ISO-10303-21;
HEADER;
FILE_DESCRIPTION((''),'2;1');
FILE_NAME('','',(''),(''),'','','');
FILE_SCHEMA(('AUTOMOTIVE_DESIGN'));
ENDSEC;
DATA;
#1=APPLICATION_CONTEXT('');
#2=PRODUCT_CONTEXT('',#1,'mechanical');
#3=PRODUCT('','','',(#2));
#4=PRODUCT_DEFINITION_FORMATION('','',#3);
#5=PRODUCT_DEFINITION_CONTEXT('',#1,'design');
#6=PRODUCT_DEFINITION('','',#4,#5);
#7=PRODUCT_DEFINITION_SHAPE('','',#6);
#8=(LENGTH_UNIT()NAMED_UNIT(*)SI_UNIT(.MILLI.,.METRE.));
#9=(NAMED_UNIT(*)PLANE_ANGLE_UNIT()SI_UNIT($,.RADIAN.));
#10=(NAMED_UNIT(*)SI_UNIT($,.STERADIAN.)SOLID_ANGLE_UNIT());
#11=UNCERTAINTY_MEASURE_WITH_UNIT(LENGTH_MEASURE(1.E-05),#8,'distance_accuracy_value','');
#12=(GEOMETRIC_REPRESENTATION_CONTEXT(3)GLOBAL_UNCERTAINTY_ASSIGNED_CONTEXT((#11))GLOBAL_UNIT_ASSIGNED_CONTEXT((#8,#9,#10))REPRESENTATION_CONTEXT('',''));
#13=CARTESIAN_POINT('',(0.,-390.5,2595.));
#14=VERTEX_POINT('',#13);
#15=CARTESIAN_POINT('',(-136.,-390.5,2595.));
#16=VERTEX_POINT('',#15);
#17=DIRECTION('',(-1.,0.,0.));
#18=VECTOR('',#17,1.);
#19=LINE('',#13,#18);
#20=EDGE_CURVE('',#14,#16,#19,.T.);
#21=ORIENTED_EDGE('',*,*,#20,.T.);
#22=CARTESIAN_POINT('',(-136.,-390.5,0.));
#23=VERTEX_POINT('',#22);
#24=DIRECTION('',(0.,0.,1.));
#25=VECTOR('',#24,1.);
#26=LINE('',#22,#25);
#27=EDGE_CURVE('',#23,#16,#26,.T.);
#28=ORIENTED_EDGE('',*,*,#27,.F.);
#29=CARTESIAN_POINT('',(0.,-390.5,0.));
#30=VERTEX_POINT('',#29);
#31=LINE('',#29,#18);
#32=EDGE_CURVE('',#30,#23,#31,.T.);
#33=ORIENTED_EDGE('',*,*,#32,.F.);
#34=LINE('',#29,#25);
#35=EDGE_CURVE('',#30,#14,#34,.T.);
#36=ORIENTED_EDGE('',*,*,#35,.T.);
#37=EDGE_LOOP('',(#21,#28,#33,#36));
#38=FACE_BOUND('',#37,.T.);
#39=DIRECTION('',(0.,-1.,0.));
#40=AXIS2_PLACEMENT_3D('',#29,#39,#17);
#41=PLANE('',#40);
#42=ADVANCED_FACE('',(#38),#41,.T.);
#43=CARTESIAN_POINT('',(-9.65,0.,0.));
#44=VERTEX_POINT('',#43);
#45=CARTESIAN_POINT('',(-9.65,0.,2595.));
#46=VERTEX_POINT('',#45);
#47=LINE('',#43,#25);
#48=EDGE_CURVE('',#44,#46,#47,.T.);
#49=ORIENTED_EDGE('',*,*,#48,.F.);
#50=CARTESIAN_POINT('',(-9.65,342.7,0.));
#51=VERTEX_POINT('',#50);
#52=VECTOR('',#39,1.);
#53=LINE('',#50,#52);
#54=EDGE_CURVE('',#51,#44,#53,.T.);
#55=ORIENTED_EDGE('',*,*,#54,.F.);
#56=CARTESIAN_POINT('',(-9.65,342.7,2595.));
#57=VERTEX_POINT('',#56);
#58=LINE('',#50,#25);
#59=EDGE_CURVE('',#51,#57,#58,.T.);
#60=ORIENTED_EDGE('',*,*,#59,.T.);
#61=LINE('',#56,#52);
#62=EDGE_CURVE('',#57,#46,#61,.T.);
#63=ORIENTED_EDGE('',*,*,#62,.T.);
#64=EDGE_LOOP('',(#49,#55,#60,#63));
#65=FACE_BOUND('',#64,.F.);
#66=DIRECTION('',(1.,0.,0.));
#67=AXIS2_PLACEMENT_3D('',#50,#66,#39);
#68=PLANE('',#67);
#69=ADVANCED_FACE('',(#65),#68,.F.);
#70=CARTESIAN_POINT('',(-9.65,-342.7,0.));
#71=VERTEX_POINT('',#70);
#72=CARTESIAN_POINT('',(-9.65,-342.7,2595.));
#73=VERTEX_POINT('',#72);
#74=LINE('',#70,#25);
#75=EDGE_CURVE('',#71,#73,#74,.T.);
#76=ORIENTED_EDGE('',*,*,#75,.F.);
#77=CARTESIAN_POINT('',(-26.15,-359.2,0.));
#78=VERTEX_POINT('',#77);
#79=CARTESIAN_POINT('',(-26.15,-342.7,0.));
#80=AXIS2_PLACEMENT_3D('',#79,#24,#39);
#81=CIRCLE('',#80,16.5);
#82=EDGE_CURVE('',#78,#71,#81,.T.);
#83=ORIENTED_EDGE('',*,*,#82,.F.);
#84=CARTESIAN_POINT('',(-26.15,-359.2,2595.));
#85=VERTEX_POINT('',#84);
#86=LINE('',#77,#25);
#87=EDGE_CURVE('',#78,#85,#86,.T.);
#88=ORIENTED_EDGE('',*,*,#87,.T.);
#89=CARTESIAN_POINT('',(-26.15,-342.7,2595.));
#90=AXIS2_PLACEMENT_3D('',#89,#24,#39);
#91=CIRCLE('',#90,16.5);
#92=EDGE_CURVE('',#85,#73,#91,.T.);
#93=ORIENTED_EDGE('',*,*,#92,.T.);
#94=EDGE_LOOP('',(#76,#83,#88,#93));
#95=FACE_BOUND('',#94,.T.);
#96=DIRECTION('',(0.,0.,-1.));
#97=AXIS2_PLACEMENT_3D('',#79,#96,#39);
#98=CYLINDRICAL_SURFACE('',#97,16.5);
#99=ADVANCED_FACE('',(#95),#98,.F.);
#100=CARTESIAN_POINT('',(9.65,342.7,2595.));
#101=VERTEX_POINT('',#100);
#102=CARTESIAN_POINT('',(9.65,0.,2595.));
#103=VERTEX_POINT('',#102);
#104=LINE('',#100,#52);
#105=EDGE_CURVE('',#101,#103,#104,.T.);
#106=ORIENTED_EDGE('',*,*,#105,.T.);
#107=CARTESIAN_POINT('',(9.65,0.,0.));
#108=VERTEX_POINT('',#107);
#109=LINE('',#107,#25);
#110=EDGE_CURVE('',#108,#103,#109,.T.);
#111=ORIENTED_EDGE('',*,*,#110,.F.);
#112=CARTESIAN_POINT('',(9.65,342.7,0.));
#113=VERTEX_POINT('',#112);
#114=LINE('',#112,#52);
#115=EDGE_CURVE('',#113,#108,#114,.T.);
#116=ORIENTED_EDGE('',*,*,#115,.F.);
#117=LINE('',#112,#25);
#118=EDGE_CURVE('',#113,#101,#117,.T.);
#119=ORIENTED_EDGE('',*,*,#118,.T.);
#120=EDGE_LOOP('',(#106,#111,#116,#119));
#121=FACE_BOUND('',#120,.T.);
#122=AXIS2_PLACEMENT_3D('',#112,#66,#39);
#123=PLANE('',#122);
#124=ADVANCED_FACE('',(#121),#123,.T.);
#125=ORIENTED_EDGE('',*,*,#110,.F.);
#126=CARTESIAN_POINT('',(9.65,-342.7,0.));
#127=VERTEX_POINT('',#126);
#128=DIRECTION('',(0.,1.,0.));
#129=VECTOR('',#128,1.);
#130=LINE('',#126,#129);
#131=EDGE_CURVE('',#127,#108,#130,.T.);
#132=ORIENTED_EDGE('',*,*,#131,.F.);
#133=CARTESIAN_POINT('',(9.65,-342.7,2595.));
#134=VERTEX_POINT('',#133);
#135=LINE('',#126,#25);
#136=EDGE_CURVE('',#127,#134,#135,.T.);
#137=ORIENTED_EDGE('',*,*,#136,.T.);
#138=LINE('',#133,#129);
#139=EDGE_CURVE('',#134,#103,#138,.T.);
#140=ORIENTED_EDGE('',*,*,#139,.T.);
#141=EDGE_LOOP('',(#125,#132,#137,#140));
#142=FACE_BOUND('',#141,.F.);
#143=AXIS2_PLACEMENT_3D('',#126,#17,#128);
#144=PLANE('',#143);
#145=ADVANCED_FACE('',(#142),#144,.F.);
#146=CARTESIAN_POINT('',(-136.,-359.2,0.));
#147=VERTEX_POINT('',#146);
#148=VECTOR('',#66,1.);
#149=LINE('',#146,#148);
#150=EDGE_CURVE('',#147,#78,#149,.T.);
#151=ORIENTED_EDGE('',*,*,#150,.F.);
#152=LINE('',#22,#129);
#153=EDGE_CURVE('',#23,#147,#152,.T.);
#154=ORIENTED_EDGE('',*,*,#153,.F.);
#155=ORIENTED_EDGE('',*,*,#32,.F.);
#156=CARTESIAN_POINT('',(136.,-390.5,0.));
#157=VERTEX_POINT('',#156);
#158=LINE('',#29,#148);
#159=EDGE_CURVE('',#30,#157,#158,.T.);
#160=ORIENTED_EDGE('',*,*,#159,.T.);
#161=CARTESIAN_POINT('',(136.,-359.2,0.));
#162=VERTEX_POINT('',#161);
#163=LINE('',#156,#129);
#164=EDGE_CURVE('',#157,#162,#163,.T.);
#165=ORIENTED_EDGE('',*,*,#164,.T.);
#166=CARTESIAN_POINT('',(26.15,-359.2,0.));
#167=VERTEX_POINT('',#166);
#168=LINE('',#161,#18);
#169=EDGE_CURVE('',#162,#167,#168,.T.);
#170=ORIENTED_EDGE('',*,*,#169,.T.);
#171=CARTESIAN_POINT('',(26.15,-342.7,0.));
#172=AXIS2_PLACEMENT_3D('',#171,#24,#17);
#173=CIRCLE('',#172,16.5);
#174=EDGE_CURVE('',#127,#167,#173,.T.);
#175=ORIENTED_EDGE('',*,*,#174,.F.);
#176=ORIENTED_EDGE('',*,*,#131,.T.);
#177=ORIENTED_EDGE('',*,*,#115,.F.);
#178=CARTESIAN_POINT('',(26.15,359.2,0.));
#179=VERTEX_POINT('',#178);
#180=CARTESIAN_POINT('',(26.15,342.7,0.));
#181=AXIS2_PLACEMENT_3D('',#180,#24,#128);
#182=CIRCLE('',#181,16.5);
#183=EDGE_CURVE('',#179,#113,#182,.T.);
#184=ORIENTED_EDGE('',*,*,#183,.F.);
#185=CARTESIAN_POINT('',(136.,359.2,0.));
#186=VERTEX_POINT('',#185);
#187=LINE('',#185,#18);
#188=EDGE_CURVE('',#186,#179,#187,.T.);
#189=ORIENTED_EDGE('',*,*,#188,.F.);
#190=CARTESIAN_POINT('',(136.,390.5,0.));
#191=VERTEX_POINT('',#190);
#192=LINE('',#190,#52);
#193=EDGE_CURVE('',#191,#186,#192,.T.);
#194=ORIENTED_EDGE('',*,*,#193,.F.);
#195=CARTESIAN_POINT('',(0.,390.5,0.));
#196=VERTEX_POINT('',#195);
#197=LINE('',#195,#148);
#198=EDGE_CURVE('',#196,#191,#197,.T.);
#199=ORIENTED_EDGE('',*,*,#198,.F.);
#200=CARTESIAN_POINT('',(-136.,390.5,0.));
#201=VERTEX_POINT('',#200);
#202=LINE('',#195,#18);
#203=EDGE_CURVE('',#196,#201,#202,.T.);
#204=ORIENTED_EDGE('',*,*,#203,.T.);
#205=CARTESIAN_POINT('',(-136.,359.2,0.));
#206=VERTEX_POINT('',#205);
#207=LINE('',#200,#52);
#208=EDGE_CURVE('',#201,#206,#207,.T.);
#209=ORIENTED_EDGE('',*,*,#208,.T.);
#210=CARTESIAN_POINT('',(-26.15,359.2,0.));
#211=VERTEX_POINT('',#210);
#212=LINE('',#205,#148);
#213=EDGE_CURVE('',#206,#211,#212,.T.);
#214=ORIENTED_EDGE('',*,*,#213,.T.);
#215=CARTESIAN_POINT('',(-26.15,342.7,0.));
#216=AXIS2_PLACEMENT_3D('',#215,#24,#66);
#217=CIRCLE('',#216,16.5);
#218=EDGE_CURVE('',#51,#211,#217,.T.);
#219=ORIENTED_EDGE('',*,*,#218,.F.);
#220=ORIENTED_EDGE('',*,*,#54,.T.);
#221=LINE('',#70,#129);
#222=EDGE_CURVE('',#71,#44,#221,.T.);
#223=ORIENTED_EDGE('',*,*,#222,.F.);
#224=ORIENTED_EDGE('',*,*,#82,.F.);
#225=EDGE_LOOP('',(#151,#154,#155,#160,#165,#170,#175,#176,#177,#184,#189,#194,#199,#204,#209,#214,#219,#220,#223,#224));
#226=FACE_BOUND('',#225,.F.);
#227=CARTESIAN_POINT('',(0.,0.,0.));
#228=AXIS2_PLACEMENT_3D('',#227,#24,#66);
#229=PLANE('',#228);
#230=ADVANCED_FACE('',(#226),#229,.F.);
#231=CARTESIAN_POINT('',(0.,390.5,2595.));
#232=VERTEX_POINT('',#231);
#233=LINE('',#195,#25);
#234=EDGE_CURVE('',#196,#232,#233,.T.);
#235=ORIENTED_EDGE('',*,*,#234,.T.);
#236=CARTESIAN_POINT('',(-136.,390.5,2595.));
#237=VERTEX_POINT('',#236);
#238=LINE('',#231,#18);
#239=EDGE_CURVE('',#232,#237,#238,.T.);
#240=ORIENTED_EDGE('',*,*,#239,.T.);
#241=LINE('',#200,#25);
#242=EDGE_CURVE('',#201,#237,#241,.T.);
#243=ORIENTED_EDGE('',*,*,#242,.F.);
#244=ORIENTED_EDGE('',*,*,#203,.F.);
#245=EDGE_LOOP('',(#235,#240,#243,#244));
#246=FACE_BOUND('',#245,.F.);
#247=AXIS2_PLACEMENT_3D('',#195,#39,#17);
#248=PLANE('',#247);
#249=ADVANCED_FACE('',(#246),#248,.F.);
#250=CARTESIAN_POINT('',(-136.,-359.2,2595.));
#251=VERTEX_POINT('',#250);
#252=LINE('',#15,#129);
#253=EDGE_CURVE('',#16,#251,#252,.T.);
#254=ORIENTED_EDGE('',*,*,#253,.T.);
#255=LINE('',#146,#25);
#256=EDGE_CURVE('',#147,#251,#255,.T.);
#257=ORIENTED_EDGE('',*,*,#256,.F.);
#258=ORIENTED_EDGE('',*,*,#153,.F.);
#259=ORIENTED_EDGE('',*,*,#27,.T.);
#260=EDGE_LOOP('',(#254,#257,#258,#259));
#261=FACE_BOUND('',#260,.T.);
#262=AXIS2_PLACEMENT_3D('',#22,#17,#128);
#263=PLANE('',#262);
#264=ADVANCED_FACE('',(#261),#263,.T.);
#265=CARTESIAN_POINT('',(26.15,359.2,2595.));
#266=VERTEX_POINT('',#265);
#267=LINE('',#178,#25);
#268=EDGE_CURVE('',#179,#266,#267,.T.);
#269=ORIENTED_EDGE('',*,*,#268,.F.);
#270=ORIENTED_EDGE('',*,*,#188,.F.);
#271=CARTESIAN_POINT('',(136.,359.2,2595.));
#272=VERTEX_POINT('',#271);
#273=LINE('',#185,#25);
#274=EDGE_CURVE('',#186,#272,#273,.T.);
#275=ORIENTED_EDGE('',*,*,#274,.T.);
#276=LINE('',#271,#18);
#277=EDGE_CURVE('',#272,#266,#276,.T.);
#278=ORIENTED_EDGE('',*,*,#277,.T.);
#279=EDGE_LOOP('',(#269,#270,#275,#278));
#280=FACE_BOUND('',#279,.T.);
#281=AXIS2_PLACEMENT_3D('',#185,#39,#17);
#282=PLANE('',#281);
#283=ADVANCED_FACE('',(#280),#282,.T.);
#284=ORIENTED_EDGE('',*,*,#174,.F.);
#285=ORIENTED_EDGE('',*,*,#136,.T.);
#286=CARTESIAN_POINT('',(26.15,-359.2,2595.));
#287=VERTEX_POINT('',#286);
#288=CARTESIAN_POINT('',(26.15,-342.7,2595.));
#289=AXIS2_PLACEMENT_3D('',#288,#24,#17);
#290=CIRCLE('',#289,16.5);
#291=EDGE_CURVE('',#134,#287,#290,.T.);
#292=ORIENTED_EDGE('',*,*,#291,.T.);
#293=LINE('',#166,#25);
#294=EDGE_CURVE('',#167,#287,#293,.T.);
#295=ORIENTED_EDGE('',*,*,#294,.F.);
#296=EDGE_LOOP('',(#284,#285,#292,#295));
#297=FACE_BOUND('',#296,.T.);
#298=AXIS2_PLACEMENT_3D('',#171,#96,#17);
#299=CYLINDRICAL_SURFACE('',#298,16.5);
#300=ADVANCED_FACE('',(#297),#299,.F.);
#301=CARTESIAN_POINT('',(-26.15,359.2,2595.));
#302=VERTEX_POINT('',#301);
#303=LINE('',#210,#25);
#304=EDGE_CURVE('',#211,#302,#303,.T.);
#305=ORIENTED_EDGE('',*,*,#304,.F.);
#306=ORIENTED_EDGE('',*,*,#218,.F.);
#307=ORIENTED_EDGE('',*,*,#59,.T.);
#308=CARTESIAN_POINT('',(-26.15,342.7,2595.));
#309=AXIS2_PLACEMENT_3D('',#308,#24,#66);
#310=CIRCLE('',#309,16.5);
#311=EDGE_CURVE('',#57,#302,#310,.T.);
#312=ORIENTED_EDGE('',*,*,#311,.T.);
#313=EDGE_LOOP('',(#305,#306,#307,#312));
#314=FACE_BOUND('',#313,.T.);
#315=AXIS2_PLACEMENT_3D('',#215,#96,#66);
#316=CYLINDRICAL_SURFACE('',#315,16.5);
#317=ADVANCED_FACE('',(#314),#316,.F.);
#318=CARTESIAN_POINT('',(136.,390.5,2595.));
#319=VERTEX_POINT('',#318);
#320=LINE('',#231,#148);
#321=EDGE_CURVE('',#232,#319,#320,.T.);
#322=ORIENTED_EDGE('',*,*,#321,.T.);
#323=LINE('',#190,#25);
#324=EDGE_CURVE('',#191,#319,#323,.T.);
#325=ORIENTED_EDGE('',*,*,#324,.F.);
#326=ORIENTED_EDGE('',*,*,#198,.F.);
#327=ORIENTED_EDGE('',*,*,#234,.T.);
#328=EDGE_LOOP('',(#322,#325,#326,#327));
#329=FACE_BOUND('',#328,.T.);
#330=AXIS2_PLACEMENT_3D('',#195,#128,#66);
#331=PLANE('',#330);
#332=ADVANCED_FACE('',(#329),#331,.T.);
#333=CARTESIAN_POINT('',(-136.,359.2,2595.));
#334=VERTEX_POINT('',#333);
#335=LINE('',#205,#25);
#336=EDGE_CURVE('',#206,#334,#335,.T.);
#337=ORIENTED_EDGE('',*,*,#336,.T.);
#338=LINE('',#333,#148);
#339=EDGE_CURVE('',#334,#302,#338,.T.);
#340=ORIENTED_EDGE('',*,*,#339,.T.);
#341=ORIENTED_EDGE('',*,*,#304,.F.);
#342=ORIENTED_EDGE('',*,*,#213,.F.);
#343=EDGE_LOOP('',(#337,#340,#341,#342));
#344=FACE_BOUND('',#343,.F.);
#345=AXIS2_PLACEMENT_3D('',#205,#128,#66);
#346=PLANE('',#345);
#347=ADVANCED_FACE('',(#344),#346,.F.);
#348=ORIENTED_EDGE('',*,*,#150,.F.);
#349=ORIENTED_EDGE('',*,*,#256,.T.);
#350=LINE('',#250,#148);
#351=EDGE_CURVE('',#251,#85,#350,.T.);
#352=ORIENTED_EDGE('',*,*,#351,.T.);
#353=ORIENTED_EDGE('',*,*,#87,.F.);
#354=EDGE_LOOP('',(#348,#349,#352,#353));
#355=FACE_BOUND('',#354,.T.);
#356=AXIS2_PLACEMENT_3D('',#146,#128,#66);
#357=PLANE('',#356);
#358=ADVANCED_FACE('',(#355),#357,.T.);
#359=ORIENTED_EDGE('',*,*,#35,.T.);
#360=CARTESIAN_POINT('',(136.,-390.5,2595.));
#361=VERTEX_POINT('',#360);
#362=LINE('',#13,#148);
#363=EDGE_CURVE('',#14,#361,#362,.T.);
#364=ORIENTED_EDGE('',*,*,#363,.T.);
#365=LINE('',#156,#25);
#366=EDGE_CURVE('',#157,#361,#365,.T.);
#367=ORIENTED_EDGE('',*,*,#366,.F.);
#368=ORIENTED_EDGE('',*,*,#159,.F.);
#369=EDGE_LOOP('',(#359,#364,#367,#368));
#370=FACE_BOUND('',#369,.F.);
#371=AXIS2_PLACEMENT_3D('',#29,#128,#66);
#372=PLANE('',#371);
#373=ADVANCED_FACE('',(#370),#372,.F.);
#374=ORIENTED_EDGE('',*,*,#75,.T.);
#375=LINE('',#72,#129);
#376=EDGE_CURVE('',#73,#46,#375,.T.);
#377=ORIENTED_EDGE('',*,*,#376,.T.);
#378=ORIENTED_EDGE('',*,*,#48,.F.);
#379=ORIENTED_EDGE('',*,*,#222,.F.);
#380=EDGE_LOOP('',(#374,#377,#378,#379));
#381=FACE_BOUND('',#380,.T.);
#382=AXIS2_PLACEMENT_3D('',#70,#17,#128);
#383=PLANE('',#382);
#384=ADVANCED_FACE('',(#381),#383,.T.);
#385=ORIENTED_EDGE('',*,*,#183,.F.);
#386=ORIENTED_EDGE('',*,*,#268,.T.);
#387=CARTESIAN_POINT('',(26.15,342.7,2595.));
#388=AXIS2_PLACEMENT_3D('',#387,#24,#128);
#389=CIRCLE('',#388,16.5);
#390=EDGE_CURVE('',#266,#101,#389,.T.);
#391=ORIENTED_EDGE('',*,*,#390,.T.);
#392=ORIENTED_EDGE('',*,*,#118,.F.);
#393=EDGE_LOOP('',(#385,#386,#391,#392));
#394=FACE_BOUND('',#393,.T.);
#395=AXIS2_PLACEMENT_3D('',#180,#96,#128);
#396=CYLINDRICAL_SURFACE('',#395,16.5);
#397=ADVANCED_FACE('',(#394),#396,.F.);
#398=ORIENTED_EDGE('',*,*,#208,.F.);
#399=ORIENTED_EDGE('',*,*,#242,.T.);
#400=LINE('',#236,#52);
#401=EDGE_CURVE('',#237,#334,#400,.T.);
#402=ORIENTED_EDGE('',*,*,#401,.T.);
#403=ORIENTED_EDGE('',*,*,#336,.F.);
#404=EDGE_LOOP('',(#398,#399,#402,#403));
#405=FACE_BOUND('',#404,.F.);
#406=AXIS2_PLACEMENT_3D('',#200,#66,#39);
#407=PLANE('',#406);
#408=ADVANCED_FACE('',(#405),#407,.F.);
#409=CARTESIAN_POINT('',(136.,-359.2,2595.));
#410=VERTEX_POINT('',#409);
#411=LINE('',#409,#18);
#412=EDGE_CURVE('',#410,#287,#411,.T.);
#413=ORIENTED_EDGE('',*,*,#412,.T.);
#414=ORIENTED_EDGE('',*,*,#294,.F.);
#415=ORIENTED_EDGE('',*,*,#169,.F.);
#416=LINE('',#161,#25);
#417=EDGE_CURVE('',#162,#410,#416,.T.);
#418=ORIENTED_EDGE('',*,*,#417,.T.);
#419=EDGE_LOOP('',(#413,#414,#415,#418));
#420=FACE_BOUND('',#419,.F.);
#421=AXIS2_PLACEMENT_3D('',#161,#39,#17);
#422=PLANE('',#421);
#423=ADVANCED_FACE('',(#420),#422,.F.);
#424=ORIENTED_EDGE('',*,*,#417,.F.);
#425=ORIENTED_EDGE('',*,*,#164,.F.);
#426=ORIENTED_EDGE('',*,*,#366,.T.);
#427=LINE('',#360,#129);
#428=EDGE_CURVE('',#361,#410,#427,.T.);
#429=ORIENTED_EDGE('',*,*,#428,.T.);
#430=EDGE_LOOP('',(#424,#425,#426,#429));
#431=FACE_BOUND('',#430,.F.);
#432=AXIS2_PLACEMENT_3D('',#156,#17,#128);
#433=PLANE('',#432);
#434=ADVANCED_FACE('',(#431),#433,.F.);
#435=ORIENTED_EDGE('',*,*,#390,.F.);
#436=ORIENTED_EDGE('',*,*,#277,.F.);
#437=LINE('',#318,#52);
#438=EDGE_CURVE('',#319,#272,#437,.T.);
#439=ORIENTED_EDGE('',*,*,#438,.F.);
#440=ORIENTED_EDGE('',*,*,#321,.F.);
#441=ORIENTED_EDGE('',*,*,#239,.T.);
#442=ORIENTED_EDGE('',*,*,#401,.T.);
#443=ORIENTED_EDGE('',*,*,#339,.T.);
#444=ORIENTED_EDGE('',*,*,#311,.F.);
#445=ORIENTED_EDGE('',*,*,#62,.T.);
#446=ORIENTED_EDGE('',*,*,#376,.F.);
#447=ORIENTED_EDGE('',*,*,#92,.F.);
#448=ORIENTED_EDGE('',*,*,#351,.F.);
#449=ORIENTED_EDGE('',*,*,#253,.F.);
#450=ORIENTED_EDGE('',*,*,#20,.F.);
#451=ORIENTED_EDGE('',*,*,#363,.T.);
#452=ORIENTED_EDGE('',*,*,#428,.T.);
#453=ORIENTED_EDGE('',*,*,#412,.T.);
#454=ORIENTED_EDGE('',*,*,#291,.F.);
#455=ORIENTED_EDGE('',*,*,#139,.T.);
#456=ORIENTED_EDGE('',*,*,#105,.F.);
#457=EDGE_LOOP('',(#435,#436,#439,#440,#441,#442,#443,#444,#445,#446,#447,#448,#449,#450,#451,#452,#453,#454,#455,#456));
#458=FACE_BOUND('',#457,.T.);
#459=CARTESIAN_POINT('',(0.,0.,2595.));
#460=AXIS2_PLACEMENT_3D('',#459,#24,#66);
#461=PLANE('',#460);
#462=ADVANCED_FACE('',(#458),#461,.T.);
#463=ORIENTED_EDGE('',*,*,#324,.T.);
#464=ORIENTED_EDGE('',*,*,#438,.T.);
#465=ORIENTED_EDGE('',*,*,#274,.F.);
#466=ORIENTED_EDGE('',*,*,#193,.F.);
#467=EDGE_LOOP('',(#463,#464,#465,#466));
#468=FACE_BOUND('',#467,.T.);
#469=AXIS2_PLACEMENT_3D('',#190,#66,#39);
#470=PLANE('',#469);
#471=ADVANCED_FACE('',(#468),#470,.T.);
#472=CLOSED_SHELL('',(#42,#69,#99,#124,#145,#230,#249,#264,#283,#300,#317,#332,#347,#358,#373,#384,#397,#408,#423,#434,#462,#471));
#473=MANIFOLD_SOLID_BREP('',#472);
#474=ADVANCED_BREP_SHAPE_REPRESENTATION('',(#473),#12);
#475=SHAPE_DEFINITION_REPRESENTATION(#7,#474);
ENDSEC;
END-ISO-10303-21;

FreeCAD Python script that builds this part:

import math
import FreeCAD as App
import Part
import Sketcher

doc = App.newDocument("Part")
body = doc.addObject("PartDesign::Body", "Body")

sketch1 = body.newObject("Sketcher::SketchObject", "Sketch")
sketch1.AttachmentSupport = (doc.getObject("XY_Plane"), [""])
sketch1.MapMode = "FlatFace"
sketch1.addGeometry([
    Part.LineSegment(App.Vector(-136, -359.2, 0), App.Vector(-136, -390.5, 0)),
    Part.LineSegment(App.Vector(-136, -390.5, 0), App.Vector(136, -390.5, 0)),
    Part.LineSegment(App.Vector(136, -390.5, 0), App.Vector(136, -359.2, 0)),
    Part.LineSegment(App.Vector(136, -359.2, 0), App.Vector(26.15, -359.2, 0)),
    Part.ArcOfCircle(Part.Circle(App.Vector(26.15, -342.7, 0), App.Vector(0, 0, 1), 16.5), math.radians(180), math.radians(270)),
    Part.LineSegment(App.Vector(9.65, -342.7, 0), App.Vector(9.65, 342.7, 0)),
    Part.ArcOfCircle(Part.Circle(App.Vector(26.15, 342.7, 0), App.Vector(0, 0, 1), 16.5), math.radians(90), math.radians(180)),
    Part.LineSegment(App.Vector(26.15, 359.2, 0), App.Vector(136, 359.2, 0)),
    Part.LineSegment(App.Vector(136, 359.2, 0), App.Vector(136, 390.5, 0)),
    Part.LineSegment(App.Vector(136, 390.5, 0), App.Vector(-136, 390.5, 0)),
    Part.LineSegment(App.Vector(-136, 390.5, 0), App.Vector(-136, 359.2, 0)),
    Part.LineSegment(App.Vector(-136, 359.2, 0), App.Vector(-26.15, 359.2, 0)),
    Part.ArcOfCircle(Part.Circle(App.Vector(-26.15, 342.7, 0), App.Vector(0, 0, 1), 16.5), math.radians(0), math.radians(90)),
    Part.LineSegment(App.Vector(-9.65, 342.7, 0), App.Vector(-9.65, -342.7, 0)),
    Part.ArcOfCircle(Part.Circle(App.Vector(-26.15, -342.7, 0), App.Vector(0, 0, 1), 16.5), math.radians(-90), math.radians(0)),
    Part.LineSegment(App.Vector(-26.15, -359.2, 0), App.Vector(-136, -359.2, 0)),
], False)
sketch1.addConstraint([
    Sketcher.Constraint("Coincident", 0, 2, 1, 1),
    Sketcher.Constraint("Coincident", 1, 2, 2, 1),
    Sketcher.Constraint("Coincident", 2, 2, 3, 1),
    Sketcher.Constraint("Tangent", 3, 2, 4, 2),
    Sketcher.Constraint("Tangent", 4, 1, 5, 1),
    Sketcher.Constraint("Tangent", 5, 2, 6, 2),
    Sketcher.Constraint("Tangent", 6, 1, 7, 1),
    Sketcher.Constraint("Coincident", 7, 2, 8, 1),
    Sketcher.Constraint("Coincident", 8, 2, 9, 1),
    Sketcher.Constraint("Coincident", 9, 2, 10, 1),
    Sketcher.Constraint("Coincident", 10, 2, 11, 1),
    Sketcher.Constraint("Tangent", 11, 2, 12, 2),
    Sketcher.Constraint("Tangent", 12, 1, 13, 1),
    Sketcher.Constraint("Tangent", 13, 2, 14, 2),
    Sketcher.Constraint("Tangent", 14, 1, 15, 1),
    Sketcher.Constraint("Coincident", 15, 2, 0, 1),
    Sketcher.Constraint("Vertical", 0),
    Sketcher.Constraint("Horizontal", 1),
    Sketcher.Constraint("Vertical", 2),
    Sketcher.Constraint("Horizontal", 3),
    Sketcher.Constraint("Vertical", 5),
    Sketcher.Constraint("Horizontal", 7),
    Sketcher.Constraint("Vertical", 8),
    Sketcher.Constraint("Horizontal", 9),
    Sketcher.Constraint("Vertical", 10),
    Sketcher.Constraint("Horizontal", 11),
    Sketcher.Constraint("Vertical", 13),
    Sketcher.Constraint("Horizontal", 15),
    Sketcher.Constraint("Equal", 4, 6),
    Sketcher.Constraint("Equal", 6, 12),
    Sketcher.Constraint("Equal", 12, 14),
    Sketcher.Constraint("Symmetric", 4, 3, 12, 3, -1, 1),
    Sketcher.Constraint("Symmetric", 0, 2, 8, 2, -1, 1),
    Sketcher.Constraint("Symmetric", 7, 2, 10, 2, -2),
    Sketcher.Constraint("Symmetric", 2, 2, 15, 2, -2),
    Sketcher.Constraint("Radius", 4, 16.5),
    Sketcher.Constraint("DistanceY", 0, 2, 0, 1, 31.3),
    Sketcher.Constraint("DistanceX", 0, 2, -1, 1, 136.0),
    Sketcher.Constraint("DistanceY", 0, 2, -1, 1, 390.5),
    Sketcher.Constraint("DistanceX", -1, 1, 4, 1, 9.65),
])
pad1 = body.newObject("PartDesign::Pad", "Pad")
pad1.Profile = sketch1
pad1.Length = 2595

doc.recompute()
